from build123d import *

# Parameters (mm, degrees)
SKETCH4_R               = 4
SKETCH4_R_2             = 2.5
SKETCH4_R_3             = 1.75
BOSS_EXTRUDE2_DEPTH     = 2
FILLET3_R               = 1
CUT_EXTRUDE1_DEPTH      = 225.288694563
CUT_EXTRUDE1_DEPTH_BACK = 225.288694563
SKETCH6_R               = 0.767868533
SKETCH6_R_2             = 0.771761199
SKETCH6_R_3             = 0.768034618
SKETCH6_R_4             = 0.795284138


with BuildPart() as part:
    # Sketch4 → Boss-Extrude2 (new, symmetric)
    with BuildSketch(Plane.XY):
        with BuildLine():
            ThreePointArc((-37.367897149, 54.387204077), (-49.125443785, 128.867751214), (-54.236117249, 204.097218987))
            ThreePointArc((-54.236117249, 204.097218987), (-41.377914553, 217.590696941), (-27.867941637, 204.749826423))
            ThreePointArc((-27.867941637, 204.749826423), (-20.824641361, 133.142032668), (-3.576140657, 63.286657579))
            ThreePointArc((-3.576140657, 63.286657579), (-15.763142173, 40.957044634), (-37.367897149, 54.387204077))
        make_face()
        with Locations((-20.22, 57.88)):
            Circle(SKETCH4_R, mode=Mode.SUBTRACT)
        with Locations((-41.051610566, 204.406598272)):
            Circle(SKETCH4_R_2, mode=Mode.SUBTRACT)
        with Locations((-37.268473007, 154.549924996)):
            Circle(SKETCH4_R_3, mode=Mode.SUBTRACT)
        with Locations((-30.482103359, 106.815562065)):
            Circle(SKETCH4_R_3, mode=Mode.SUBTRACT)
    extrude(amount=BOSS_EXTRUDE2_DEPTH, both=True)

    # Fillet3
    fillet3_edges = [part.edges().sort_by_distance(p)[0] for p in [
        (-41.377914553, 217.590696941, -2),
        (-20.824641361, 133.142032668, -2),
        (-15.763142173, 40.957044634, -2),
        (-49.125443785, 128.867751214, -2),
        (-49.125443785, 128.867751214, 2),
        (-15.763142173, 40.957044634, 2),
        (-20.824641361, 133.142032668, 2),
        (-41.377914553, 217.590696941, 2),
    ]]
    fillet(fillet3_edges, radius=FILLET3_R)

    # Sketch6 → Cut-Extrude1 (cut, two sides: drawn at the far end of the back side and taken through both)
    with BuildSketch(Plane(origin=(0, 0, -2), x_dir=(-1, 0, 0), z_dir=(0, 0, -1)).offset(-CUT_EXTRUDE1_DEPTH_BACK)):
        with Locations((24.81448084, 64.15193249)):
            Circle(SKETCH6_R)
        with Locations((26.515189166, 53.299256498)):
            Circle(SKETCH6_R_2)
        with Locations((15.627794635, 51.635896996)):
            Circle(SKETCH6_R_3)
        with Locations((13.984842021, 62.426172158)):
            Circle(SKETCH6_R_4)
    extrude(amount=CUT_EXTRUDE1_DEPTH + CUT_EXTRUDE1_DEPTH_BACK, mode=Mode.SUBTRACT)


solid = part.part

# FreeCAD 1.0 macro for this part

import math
import FreeCAD as App
import Part
import Sketcher
from FreeCAD import Vector
Q = App.Units.Quantity


def edges_at(feature, points):
    """Names of the edges that pass closest to the given points."""
    edges = feature.Shape.Edges
    near = lambda p: min(range(len(edges)), key=lambda i: edges[i].distToShape(Part.Vertex(*p))[0])
    return sorted({f"Edge{near(p) + 1}" for p in points})

doc = App.newDocument("Part")
body = doc.addObject("PartDesign::Body", "Body")

sketch1 = body.newObject("Sketcher::SketchObject", "Sketch")
sketch1.AttachmentSupport = (doc.getObject("XY_Plane"), [""])
sketch1.MapMode = "FlatFace"
sketch1.addGeometry([
    Part.ArcOfCircle(Part.Circle(Vector(795.5, 224, 0), Vector(0, 0, 1), 850), math.radians(-178.66), math.radians(-168.49)),
    Part.ArcOfCircle(Part.Circle(Vector(-20.2, 57.9, 0), Vector(0, 0, 1), 17.5), math.radians(-168), math.radians(18)),
    Part.ArcOfCircle(Part.Circle(Vector(472, 217.8, 0), Vector(0, 0, 1), 500), math.radians(-178.51), math.radians(-162)),
    Part.ArcOfCircle(Part.Circle(Vector(-41.1, 204.4, 0), Vector(0, 0, 1), 13.2), math.radians(1), math.radians(181)),
    Part.Circle(Vector(-20.2, 57.9, 0), Vector(0, 0, 1), 4),
    Part.Circle(Vector(-30.5, 106.8, 0), Vector(0, 0, 1), 1.8),
    Part.Circle(Vector(-37.3, 154.5, 0), Vector(0, 0, 1), 1.8),
    Part.Circle(Vector(-41.1, 204.4, 0), Vector(0, 0, 1), 2.5),
], False)
sketch1.addConstraint([
    Sketcher.Constraint("Tangent", 0, 2, 1, 1),
    Sketcher.Constraint("Tangent", 1, 2, 2, 2),
    Sketcher.Constraint("Tangent", 2, 1, 3, 1),
    Sketcher.Constraint("Tangent", 3, 2, 0, 1),
    Sketcher.Constraint("Coincident", 4, 3, 1, 3),
    Sketcher.Constraint("Coincident", 7, 3, 3, 3),
    Sketcher.Constraint("Equal", 5, 6),
    Sketcher.Constraint("Diameter", 4, Q("8 mm")),
    Sketcher.Constraint("Diameter", 7, Q("5 mm")),
    Sketcher.Constraint("Radius", 0, Q("850 mm")),
    Sketcher.Constraint("Radius", 2, Q("500 mm")),
    Sketcher.Constraint("Diameter", 5, Q("3.5 mm")),
    Sketcher.Constraint("Radius", 1, Q("17.5 mm")),
    Sketcher.Constraint("DistanceX", 1, 3, -1, 1, Q("20.22 mm")),
    Sketcher.Constraint("DistanceY", -1, 1, 1, 3, Q("57.88 mm")),
    Sketcher.Constraint("Radius", 3, Q("13.188136 mm")),
    Sketcher.Constraint("DistanceY", -1, 1, 3, 3, Q("204.406598 mm")),
    Sketcher.Constraint("DistanceX", 5, 3, 2, 3, Q("502.444801 mm")),
    Sketcher.Constraint("DistanceY", 6, 3, 2, 1, Q("50.199901 mm")),
    Sketcher.Constraint("DistanceX", 2, 1, 1, 2, Q("24.291801 mm")),
    Sketcher.Constraint("DistanceY", 5, 3, 0, 3, Q("117.22173 mm")),
    Sketcher.Constraint("DistanceX", 6, 3, 5, 3, Q("6.78637 mm")),
])
pad1 = body.newObject("PartDesign::Pad", "Pad")
pad1.Profile = sketch1
pad1.Length = 4
pad1.Midplane = True
doc.recompute()

fillet = body.newObject("PartDesign::Fillet", "Fillet")
fillet.Base = (pad1, edges_at(pad1, [
    (-41.378, 217.591, -2),
    (-20.825, 133.142, -2),
    (-15.763, 40.957, -2),
    (-49.125, 128.868, -2),
    (-49.125, 128.868, 2),
    (-15.763, 40.957, 2),
    (-20.825, 133.142, 2),
    (-41.378, 217.591, 2),
]))
fillet.Radius = 1

sketch2 = body.newObject("Sketcher::SketchObject", "Sketch001")
sketch2.AttachmentSupport = (doc.getObject("XY_Plane"), [""])
sketch2.MapMode = "FlatFace"
sketch2.AttachmentOffset = App.Placement(Vector(0, 0, -2), App.Rotation())
sketch2.addGeometry([
    Part.Circle(Vector(-24.8, 64.2, 0), Vector(0, 0, 1), 0.8),
    Part.Circle(Vector(-26.5, 53.3, 0), Vector(0, 0, 1), 0.8),
    Part.Circle(Vector(-15.6, 51.6, 0), Vector(0, 0, 1), 0.8),
    Part.Circle(Vector(-14, 62.4, 0), Vector(0, 0, 1), 0.8),
], False)
sketch2.addConstraint([
    Sketcher.Constraint("Diameter", 2, Q("1.536069 mm")),
    Sketcher.Constraint("Diameter", 3, Q("1.590568 mm")),
    Sketcher.Constraint("Diameter", 0, Q("1.535737 mm")),
    Sketcher.Constraint("Diameter", 1, Q("1.543522 mm")),
    Sketcher.Constraint("DistanceX", 0, 3, -1, 1, Q("24.814481 mm")),
    Sketcher.Constraint("DistanceX", 1, 3, -1, 1, Q("26.515189 mm")),
    Sketcher.Constraint("DistanceY", 2, 3, 1, 3, Q("1.66336 mm")),
    Sketcher.Constraint("DistanceX", 0, 3, 3, 3, Q("10.829639 mm")),
    Sketcher.Constraint("DistanceY", 3, 3, 0, 3, Q("1.72576 mm")),
    Sketcher.Constraint("DistanceY", -1, 1, 0, 3, Q("64.151932 mm")),
    Sketcher.Constraint("DistanceY", -1, 1, 1, 3, Q("53.299256 mm")),
    Sketcher.Constraint("DistanceX", 2, 3, -1, 1, Q("15.627795 mm")),
])
pocket1 = body.newObject("PartDesign::Pocket", "Pocket")
pocket1.Profile = sketch2
pocket1.Type = "ThroughAll"
pocket1.Midplane = True

doc.recompute()
